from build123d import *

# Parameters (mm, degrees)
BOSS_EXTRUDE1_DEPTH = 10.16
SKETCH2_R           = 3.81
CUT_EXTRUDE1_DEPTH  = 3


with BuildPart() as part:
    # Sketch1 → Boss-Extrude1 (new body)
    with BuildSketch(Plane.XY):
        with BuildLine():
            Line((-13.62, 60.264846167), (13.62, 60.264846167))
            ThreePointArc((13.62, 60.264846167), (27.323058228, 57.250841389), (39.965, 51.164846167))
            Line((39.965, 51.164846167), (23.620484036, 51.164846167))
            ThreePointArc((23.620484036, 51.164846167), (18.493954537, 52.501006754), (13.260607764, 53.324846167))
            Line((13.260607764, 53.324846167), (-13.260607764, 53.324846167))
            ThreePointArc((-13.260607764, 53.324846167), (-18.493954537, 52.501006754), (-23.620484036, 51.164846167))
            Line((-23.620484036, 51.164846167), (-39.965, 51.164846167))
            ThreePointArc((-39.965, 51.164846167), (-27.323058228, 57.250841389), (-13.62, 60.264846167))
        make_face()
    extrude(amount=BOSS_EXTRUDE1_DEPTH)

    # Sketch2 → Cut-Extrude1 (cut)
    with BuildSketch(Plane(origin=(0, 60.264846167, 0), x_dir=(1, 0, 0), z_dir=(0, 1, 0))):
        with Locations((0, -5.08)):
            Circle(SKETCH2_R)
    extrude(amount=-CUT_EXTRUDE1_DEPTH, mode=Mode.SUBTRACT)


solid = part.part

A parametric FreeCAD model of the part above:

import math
import FreeCAD as App
import Part
import Sketcher
Q = App.Units.Quantity

doc = App.newDocument("Part")
body = doc.addObject("PartDesign::Body", "Body")

# Sketch on XY plane
sketch1 = body.newObject("Sketcher::SketchObject", "Sketch")
sketch1.AttachmentSupport = (doc.getObject("XY_Plane"), [""])
sketch1.MapMode = "FlatFace"
sketch1.addGeometry([
    Part.LineSegment(App.Vector(13.62, 60.264846, 0), App.Vector(-13.62, 60.264846, 0)),  # 0
    Part.ArcOfCircle(Part.Circle(App.Vector(-7.547668, 0, 0), App.Vector(0, 0, 1), 60.57), math.radians(95.753747), math.radians(122.357776)),  # 1
    Part.LineSegment(App.Vector(-39.965, 51.164846, 0), App.Vector(-23.620484, 51.164846, 0)),  # 2
    Part.ArcOfCircle(Part.Circle(App.Vector(-7.547668, 0, 0), App.Vector(0, 0, 1), 53.63), math.radians(96.11504), math.radians(107.439479)),  # 3
    Part.LineSegment(App.Vector(-13.260608, 53.324846, 0), App.Vector(13.260608, 53.324846, 0)),  # 4
    Part.ArcOfCircle(Part.Circle(App.Vector(7.547668, 0, 0), App.Vector(0, 0, 1), 53.63), math.radians(72.560521), math.radians(83.88496)),  # 5
    Part.LineSegment(App.Vector(23.620484, 51.164846, 0), App.Vector(39.965, 51.164846, 0)),  # 6
    Part.ArcOfCircle(Part.Circle(App.Vector(7.547668, 0, 0), App.Vector(0, 0, 1), 60.57), math.radians(57.642224), math.radians(84.246253)),  # 7
], False)
sketch1.addConstraint([
    Sketcher.Constraint("Coincident", 0, 2, 1, 1),
    Sketcher.Constraint("Coincident", 1, 2, 2, 1),
    Sketcher.Constraint("Coincident", 2, 2, 3, 2),
    Sketcher.Constraint("Coincident", 3, 1, 4, 1),
    Sketcher.Constraint("Coincident", 4, 2, 5, 2),
    Sketcher.Constraint("Coincident", 5, 1, 6, 1),
    Sketcher.Constraint("Coincident", 6, 2, 7, 1),
    Sketcher.Constraint("Coincident", 7, 2, 0, 1),
    Sketcher.Constraint("Horizontal", 0),
    Sketcher.Constraint("Horizontal", 2),
    Sketcher.Constraint("Horizontal", 4),
    Sketcher.Constraint("Horizontal", 6),
    Sketcher.Constraint("Coincident", 3, 3, 1, 3),
    Sketcher.Constraint("Coincident", 7, 3, 5, 3),
    Sketcher.Constraint("Equal", 3, 5),
    Sketcher.Constraint("Equal", 1, 7),
    Sketcher.Constraint("Symmetric", 1, 3, 5, 3, -1, 1),
    Sketcher.Constraint("Symmetric", 2, 2, 5, 1, -2),
    Sketcher.Constraint("Radius", 1, Q("60.57 mm")),
    Sketcher.Constraint("Radius", 3, Q("53.63 mm")),
    Sketcher.Constraint("DistanceX", 0, 2, 0, 1, Q("27.24 mm")),
    Sketcher.Constraint("DistanceX", 1, 2, -1, 1, Q("39.965 mm")),
    Sketcher.Constraint("DistanceY", 1, 2, 0, 2, Q("9.1 mm")),
    Sketcher.Constraint("DistanceY", 3, 1, 0, 2, Q("6.94 mm")),
])
pad1 = body.newObject("PartDesign::Pad", "Pad")
pad1.Profile = sketch1
pad1.Length = Q("0.4 in")

# Sketch on XZ plane
sketch2 = body.newObject("Sketcher::SketchObject", "Sketch001")
sketch2.AttachmentSupport = (doc.getObject("XZ_Plane"), [""])
sketch2.MapMode = "FlatFace"
sketch2.AttachmentOffset = App.Placement(App.Vector(0, 0, -60.264846), App.Rotation())
sketch2.addGeometry(Part.Circle(App.Vector(0, 5.08, 0), App.Vector(0, 0, 1), 3.81), False)
sketch2.addConstraint([
    Sketcher.Constraint("PointOnObject", 0, 3, -2),
    Sketcher.Constraint("Diameter", 0, Q("0.3 in")),
    Sketcher.Constraint("DistanceY", -1, 1, 0, 3, Q("0.2 in")),
])
pocket1 = body.newObject("PartDesign::Pocket", "Pocket")
pocket1.Profile = sketch2
pocket1.Length = 3
pocket1.Reversed = True

doc.recompute()
